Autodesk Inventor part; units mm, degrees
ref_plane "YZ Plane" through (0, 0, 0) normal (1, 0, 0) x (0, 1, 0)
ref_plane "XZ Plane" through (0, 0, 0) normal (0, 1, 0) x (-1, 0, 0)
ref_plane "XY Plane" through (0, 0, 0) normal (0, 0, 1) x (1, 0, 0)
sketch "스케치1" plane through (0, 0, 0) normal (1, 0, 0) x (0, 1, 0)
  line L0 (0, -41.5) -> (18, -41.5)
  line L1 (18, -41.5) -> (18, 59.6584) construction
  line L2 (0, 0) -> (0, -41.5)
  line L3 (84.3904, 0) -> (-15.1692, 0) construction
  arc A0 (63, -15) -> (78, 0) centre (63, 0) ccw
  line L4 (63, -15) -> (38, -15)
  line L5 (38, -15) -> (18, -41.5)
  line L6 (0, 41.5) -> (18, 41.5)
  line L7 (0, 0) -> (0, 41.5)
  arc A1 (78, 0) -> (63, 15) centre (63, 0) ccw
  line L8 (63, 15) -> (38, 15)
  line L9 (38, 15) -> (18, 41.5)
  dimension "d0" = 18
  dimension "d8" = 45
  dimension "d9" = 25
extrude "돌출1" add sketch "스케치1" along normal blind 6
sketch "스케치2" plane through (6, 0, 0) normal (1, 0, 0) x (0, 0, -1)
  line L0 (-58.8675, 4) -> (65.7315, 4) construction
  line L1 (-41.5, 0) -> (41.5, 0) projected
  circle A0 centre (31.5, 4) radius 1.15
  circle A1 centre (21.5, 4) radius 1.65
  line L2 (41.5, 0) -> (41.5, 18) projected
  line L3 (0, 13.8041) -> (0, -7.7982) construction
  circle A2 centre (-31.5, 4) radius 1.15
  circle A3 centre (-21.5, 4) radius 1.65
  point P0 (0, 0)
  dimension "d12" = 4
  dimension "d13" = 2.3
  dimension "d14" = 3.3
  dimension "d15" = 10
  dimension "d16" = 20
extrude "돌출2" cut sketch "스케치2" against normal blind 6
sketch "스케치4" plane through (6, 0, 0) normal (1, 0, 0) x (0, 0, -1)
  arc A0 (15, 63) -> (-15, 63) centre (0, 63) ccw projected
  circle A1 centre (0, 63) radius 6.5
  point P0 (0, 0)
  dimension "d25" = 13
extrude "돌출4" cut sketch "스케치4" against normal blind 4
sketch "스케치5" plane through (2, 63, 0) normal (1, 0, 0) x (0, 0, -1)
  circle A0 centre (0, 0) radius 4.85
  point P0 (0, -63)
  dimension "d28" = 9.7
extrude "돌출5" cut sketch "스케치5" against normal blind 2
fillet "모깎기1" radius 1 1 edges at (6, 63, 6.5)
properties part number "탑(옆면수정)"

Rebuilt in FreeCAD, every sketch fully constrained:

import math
import FreeCAD as App
import Part
import Sketcher
Q = App.Units.Quantity


def edges_at(feature, points):
    """Names of the edges that pass closest to the given points."""
    edges = feature.Shape.Edges
    near = lambda p: min(range(len(edges)), key=lambda i: edges[i].distToShape(Part.Vertex(*p))[0])
    return sorted({f"Edge{near(p) + 1}" for p in points})

doc = App.newDocument("Part")
body = doc.addObject("PartDesign::Body", "Body")

# Sketch on YZ plane
sketch1 = body.newObject("Sketcher::SketchObject", "Sketch")
sketch1.AttachmentSupport = (doc.getObject("YZ_Plane"), [""])
sketch1.MapMode = "FlatFace"
sketch1.addGeometry([
    Part.LineSegment(App.Vector(0, 42, 0), App.Vector(0, -42, 0)),  # 0
    Part.LineSegment(App.Vector(0, -42, 0), App.Vector(18, -42, 0)),  # 1
    Part.LineSegment(App.Vector(18, -42, 0), App.Vector(38, -15, 0)),  # 2
    Part.LineSegment(App.Vector(38, -15, 0), App.Vector(63, -15, 0)),  # 3
    Part.ArcOfCircle(Part.Circle(App.Vector(63, 0, 0), App.Vector(0, 0, 1), 15), math.radians(-90), math.radians(90)),  # 4
    Part.LineSegment(App.Vector(63, 15, 0), App.Vector(38, 15, 0)),  # 5
    Part.LineSegment(App.Vector(38, 15, 0), App.Vector(18, 42, 0)),  # 6
    Part.LineSegment(App.Vector(18, 42, 0), App.Vector(0, 42, 0)),  # 7
], False)
sketch1.addConstraint([
    Sketcher.Constraint("Coincident", 0, 2, 1, 1),
    Sketcher.Constraint("Coincident", 1, 2, 2, 1),
    Sketcher.Constraint("Coincident", 2, 2, 3, 1),
    Sketcher.Constraint("Tangent", 3, 2, 4, 1),
    Sketcher.Constraint("Tangent", 4, 2, 5, 1),
    Sketcher.Constraint("Coincident", 5, 2, 6, 1),
    Sketcher.Constraint("Coincident", 6, 2, 7, 1),
    Sketcher.Constraint("Coincident", 7, 2, 0, 1),
    Sketcher.Constraint("Vertical", 0),
    Sketcher.Constraint("Horizontal", 1),
    Sketcher.Constraint("Horizontal", 3),
    Sketcher.Constraint("Horizontal", 5),
    Sketcher.Constraint("Horizontal", 7),
    Sketcher.Constraint("Symmetric", 0, 2, 7, 2, -1, 1),
    Sketcher.Constraint("Symmetric", 2, 2, 5, 2, -1),
    Sketcher.Constraint("Vertical", 1, 2, 6, 2),
    Sketcher.Constraint("DistanceX", 1, 1, 1, 2, Q("18 mm")),
    Sketcher.Constraint("DistanceX", 3, 1, 3, 2, Q("25 mm")),
    Sketcher.Constraint("Radius", 4, Q("15 mm")),
    Sketcher.Constraint("DistanceX", 1, 2, 4, 3, Q("45 mm")),
    Sketcher.Constraint("DistanceY", 0, 2, 0, 1, Q("83 mm")),
])
pad1 = body.newObject("PartDesign::Pad", "Pad")
pad1.Profile = sketch1
pad1.Length = 6

# Sketch on YZ plane
sketch2 = body.newObject("Sketcher::SketchObject", "Sketch001")
sketch2.AttachmentSupport = (doc.getObject("YZ_Plane"), [""])
sketch2.MapMode = "FlatFace"
sketch2.AttachmentOffset = App.Placement(App.Vector(0, 0, 6), App.Rotation())
sketch2.addGeometry([
    Part.Circle(App.Vector(4, -31.5, 0), App.Vector(0, 0, 1), 1.1),
    Part.Circle(App.Vector(4, -21.5, 0), App.Vector(0, 0, 1), 1.6),
    Part.Circle(App.Vector(4, 31.5, 0), App.Vector(0, 0, 1), 1.1),
    Part.Circle(App.Vector(4, 21.5, 0), App.Vector(0, 0, 1), 1.6),
], False)
sketch2.addConstraint([
    Sketcher.Constraint("Equal", 0, 2),
    Sketcher.Constraint("Equal", 1, 3),
    Sketcher.Constraint("Symmetric", 0, 3, 2, 3, -1),
    Sketcher.Constraint("Symmetric", 1, 3, 3, 3, -1),
    Sketcher.Constraint("Vertical", 0, 3, 1, 3),
    Sketcher.Constraint("Diameter", 0, Q("2.3 mm")),
    Sketcher.Constraint("Diameter", 1, Q("3.3 mm")),
    Sketcher.Constraint("DistanceX", -1, 1, 0, 3, Q("4 mm")),
    Sketcher.Constraint("DistanceY", 0, 3, 1, 3, Q("10 mm")),
    Sketcher.Constraint("DistanceY", 1, 3, 2, 3, Q("53 mm")),
])
pocket1 = body.newObject("PartDesign::Pocket", "Pocket")
pocket1.Profile = sketch2
pocket1.Length = 6

# Sketch on YZ plane
sketch3 = body.newObject("Sketcher::SketchObject", "Sketch002")
sketch3.AttachmentSupport = (doc.getObject("YZ_Plane"), [""])
sketch3.MapMode = "FlatFace"
sketch3.AttachmentOffset = App.Placement(App.Vector(0, 0, 6), App.Rotation())
sketch3.addGeometry(Part.Circle(App.Vector(63, 0, 0), App.Vector(0, 0, 1), 6), False)
sketch3.addConstraint([
    Sketcher.Constraint("PointOnObject", 0, 3, -1),
    Sketcher.Constraint("Diameter", 0, Q("13 mm")),
    Sketcher.Constraint("DistanceX", -1, 1, 0, 3, Q("63 mm")),
])
pocket2 = body.newObject("PartDesign::Pocket", "Pocket001")
pocket2.Profile = sketch3
pocket2.Length = 4

# Sketch on YZ plane
sketch4 = body.newObject("Sketcher::SketchObject", "Sketch003")
sketch4.AttachmentSupport = (doc.getObject("YZ_Plane"), [""])
sketch4.MapMode = "FlatFace"
sketch4.AttachmentOffset = App.Placement(App.Vector(0, 0, 2), App.Rotation())
sketch4.addGeometry(Part.Circle(App.Vector(63, 0, 0), App.Vector(0, 0, 1), 4.8), False)
sketch4.addConstraint([
    Sketcher.Constraint("PointOnObject", 0, 3, -1),
    Sketcher.Constraint("Diameter", 0, Q("9.7 mm")),
    Sketcher.Constraint("DistanceX", -1, 1, 0, 3, Q("63 mm")),
])
pocket3 = body.newObject("PartDesign::Pocket", "Pocket002")
pocket3.Profile = sketch4
pocket3.Length = 2
doc.recompute()

fillet = body.newObject("PartDesign::Fillet", "Fillet")
fillet.Base = (pocket3, edges_at(pocket3, [(6, 63, 6.5)]))
fillet.Radius = 1

doc.recompute()
